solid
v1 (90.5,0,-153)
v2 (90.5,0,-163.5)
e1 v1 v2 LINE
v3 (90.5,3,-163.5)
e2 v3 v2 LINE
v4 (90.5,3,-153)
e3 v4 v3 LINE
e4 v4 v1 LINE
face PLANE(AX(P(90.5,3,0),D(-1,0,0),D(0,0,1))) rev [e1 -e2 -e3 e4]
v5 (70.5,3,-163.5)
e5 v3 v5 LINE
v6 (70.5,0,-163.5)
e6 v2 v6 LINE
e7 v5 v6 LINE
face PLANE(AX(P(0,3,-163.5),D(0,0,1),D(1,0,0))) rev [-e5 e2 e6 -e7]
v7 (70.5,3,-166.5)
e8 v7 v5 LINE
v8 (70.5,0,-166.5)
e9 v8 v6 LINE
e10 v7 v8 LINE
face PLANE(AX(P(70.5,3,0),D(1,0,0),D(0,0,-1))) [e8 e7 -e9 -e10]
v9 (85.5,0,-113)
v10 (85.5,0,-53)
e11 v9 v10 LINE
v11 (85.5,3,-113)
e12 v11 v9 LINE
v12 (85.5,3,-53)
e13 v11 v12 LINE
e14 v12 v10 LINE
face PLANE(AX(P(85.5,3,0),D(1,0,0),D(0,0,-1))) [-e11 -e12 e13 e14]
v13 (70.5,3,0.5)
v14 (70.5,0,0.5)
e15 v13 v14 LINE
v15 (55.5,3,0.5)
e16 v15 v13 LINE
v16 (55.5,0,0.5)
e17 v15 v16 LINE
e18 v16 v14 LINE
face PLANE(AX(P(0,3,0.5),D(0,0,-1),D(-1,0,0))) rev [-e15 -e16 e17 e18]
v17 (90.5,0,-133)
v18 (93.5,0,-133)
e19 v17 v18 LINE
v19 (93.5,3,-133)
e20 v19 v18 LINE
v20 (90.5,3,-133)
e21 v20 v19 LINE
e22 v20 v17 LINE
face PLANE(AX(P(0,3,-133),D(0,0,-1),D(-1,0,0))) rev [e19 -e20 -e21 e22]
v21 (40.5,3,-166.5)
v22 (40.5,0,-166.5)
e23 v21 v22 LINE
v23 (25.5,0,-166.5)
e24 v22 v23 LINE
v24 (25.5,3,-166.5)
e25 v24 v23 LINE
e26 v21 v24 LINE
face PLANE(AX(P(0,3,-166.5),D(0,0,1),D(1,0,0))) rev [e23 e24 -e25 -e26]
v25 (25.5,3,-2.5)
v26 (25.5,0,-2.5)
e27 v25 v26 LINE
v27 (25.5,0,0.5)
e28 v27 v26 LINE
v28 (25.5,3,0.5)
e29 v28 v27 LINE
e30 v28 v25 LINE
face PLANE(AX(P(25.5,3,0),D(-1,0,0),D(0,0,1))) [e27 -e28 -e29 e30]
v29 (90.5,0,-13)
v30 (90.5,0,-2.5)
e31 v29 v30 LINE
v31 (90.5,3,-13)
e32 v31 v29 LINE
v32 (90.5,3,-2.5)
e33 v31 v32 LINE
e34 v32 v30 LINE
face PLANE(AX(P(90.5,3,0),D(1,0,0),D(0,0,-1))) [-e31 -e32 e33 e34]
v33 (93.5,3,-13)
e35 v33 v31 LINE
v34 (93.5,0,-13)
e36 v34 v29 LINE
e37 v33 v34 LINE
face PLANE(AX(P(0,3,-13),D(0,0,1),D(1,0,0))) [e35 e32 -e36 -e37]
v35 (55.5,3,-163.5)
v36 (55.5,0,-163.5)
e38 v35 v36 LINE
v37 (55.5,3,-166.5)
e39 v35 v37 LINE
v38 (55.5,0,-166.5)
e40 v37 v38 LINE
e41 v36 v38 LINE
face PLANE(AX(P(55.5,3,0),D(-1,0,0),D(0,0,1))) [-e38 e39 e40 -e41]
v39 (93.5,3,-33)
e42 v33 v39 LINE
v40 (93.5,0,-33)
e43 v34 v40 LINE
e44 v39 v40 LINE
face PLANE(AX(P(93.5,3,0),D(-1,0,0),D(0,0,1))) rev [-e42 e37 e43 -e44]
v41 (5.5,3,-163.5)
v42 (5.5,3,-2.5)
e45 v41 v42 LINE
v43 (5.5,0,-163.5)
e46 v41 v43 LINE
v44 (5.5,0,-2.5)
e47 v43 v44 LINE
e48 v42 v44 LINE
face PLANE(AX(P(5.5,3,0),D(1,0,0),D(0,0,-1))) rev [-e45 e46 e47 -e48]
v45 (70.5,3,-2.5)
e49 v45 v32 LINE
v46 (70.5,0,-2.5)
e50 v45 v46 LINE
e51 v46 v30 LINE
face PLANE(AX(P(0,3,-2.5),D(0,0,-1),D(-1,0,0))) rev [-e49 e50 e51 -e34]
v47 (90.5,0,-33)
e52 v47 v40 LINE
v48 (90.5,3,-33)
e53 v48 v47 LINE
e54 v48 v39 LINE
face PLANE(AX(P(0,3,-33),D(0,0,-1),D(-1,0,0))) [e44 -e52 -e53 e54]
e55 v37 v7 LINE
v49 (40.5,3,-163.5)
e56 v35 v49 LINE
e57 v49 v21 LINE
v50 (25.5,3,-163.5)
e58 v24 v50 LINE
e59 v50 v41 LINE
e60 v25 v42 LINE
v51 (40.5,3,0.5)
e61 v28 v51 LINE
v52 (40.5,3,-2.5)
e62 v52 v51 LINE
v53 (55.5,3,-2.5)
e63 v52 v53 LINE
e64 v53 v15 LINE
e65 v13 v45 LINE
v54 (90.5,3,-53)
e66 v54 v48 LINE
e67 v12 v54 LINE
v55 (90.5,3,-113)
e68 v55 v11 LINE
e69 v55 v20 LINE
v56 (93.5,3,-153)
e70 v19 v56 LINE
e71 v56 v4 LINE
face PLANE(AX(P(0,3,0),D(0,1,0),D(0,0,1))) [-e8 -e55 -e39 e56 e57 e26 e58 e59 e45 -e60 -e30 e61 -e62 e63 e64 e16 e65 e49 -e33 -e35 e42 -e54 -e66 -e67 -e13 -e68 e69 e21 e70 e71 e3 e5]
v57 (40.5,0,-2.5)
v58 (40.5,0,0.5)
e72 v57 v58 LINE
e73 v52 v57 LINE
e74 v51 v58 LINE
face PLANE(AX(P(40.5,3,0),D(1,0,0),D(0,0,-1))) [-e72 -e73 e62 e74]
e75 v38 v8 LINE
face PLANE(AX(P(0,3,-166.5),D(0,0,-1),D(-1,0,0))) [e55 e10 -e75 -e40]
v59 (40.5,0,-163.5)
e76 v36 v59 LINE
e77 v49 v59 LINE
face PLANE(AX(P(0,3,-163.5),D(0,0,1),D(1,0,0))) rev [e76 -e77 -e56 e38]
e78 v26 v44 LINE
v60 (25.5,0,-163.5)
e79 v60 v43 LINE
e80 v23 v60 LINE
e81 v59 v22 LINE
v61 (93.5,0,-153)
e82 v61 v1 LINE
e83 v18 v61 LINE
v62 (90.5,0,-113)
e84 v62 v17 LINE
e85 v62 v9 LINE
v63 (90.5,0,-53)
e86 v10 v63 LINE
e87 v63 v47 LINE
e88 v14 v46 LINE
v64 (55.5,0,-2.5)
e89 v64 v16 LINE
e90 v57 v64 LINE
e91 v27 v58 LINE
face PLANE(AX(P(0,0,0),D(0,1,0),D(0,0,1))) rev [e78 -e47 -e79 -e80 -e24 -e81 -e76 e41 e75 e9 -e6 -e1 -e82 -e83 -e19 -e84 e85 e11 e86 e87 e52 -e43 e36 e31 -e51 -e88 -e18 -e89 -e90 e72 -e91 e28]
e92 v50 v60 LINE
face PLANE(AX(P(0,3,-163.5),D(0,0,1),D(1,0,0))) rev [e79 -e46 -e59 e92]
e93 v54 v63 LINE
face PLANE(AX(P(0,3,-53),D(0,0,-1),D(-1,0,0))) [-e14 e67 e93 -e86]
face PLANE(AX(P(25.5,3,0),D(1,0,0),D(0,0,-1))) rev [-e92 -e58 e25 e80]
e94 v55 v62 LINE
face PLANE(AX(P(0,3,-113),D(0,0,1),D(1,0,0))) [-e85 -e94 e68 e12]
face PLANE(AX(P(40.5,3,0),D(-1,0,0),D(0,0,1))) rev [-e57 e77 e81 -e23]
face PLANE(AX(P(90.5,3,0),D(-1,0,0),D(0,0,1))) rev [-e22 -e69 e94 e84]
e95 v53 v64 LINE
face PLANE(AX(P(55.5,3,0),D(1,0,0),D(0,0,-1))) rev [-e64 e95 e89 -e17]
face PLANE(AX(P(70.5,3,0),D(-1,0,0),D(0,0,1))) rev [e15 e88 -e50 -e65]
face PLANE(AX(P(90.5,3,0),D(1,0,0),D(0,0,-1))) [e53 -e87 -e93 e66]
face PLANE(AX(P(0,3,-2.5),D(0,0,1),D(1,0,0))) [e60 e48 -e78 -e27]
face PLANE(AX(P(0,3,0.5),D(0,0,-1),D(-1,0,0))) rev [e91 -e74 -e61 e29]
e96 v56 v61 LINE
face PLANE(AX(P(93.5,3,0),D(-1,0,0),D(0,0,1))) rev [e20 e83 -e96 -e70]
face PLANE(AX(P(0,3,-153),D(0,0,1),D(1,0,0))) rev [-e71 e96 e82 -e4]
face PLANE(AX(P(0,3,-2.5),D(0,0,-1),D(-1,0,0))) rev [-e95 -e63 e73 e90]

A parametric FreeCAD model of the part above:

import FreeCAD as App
import Part
import Sketcher

V = App.Vector
Q = App.Units.Quantity


def add_polygon(sketch, points):
    """Adds a closed chain of lines whose ends are joined by coincident constraints."""
    first, n = sketch.GeometryCount, len(points)
    for a, b in zip(points, points[1:] + points[:1]):
        sketch.addGeometry(Part.LineSegment(App.Vector(*a, 0), App.Vector(*b, 0)), False)
    for i in range(n):
        sketch.addConstraint(Sketcher.Constraint("Coincident", first + i, 2, first + (i + 1) % n, 1))

doc = App.newDocument("Part")
body = doc.addObject("PartDesign::Body", "Body")

# Sketch on XZ plane
sketch1 = body.newObject("Sketcher::SketchObject", "Sketch")
sketch1.AttachmentSupport = (doc.getObject("XZ_Plane"), [""])
sketch1.MapMode = "FlatFace"
add_polygon(sketch1, [(25.5, -2.5), (25.5, 0.5), (40.5, 0.5), (40.5, -2.5), (55.5, -2.5), (55.5, 0.5), (70.5, 0.5), (70.5, -2.5), (90.5, -2.5), (90.5, -13), (93.5, -13), (93.5, -33), (90.5, -33), (90.5, -53), (85.5, -53), (85.5, -113), (90.5, -113), (90.5, -133), (93.5, -133), (93.5, -153), (90.5, -153), (90.5, -163.5), (70.5, -163.5), (70.5, -166.5), (55.5, -166.5), (55.5, -163.5), (40.5, -163.5), (40.5, -166.5), (25.5, -166.5), (25.5, -163.5), (5.5, -163.5), (5.5, -2.5)])  # lines 0-31
sketch1.addConstraint([
    Sketcher.Constraint("Vertical", 0),
    Sketcher.Constraint("Horizontal", 1),
    Sketcher.Constraint("Vertical", 2),
    Sketcher.Constraint("Horizontal", 3),
    Sketcher.Constraint("Vertical", 4),
    Sketcher.Constraint("Horizontal", 5),
    Sketcher.Constraint("Vertical", 6),
    Sketcher.Constraint("Horizontal", 7),
    Sketcher.Constraint("Vertical", 8),
    Sketcher.Constraint("Horizontal", 9),
    Sketcher.Constraint("Vertical", 10),
    Sketcher.Constraint("Horizontal", 11),
    Sketcher.Constraint("Vertical", 12),
    Sketcher.Constraint("Horizontal", 13),
    Sketcher.Constraint("Vertical", 14),
    Sketcher.Constraint("Horizontal", 15),
    Sketcher.Constraint("Vertical", 16),
    Sketcher.Constraint("Horizontal", 17),
    Sketcher.Constraint("Vertical", 18),
    Sketcher.Constraint("Horizontal", 19),
    Sketcher.Constraint("Vertical", 20),
    Sketcher.Constraint("Horizontal", 21),
    Sketcher.Constraint("Vertical", 22),
    Sketcher.Constraint("Horizontal", 23),
    Sketcher.Constraint("Vertical", 24),
    Sketcher.Constraint("Horizontal", 25),
    Sketcher.Constraint("Vertical", 26),
    Sketcher.Constraint("Horizontal", 27),
    Sketcher.Constraint("Vertical", 28),
    Sketcher.Constraint("Horizontal", 29),
    Sketcher.Constraint("Vertical", 30),
    Sketcher.Constraint("Horizontal", 31),
    Sketcher.Constraint("Horizontal", 1, 2, 4, 2),
    Sketcher.Constraint("Horizontal", 3, 2, 6, 2),
    Sketcher.Constraint("Horizontal", 21, 2, 24, 2),
    Sketcher.Constraint("Horizontal", 23, 2, 26, 2),
    Sketcher.Constraint("Horizontal", 25, 2, 28, 2),
    Sketcher.Constraint("Horizontal", 7, 2, 30, 2),
    Sketcher.Constraint("Vertical", 8, 2, 11, 2),
    Sketcher.Constraint("Vertical", 12, 2, 15, 2),
    Sketcher.Constraint("Vertical", 10, 2, 17, 2),
    Sketcher.Constraint("Vertical", 16, 2, 19, 2),
    Sketcher.Constraint("Vertical", 6, 2, 21, 2),
    Sketcher.Constraint("Vertical", 4, 2, 23, 2),
    Sketcher.Constraint("Vertical", 2, 2, 25, 2),
    Sketcher.Constraint("Vertical", 0, 2, 27, 2),
    Sketcher.Constraint("Equal", 1, 3),
    Sketcher.Constraint("Equal", 3, 5),
    Sketcher.Constraint("Equal", 21, 29),
    Sketcher.Constraint("Equal", 19, 0),
    Sketcher.Constraint("Equal", 31, 10),
    Sketcher.Constraint("Equal", 10, 12),
    Sketcher.Constraint("Equal", 12, 16),
    Sketcher.Constraint("Equal", 16, 18),
    Sketcher.Constraint("Equal", 8, 20),
    Sketcher.Constraint("Equal", 6, 22),
    Sketcher.Constraint("DistanceX", 1, 1, 1, 2, Q("15 mm")),
    Sketcher.Constraint("DistanceX", 7, 1, 7, 2, Q("20 mm")),
    Sketcher.Constraint("DistanceX", 9, 1, 9, 2, Q("3 mm")),
    Sketcher.Constraint("DistanceX", 13, 2, 13, 1, Q("5 mm")),
    Sketcher.Constraint("DistanceY", 14, 2, 14, 1, Q("60 mm")),
    Sketcher.Constraint("DistanceY", 30, 1, 30, 2, Q("161 mm")),
    Sketcher.Constraint("DistanceY", 8, 2, -1, 1, Q("13 mm")),
    Sketcher.Constraint("DistanceX", -1, 1, 0, 2, Q("25.5 mm")),
])
pad1 = body.newObject("PartDesign::Pad", "Pad")
pad1.Profile = sketch1
pad1.Length = 3
pad1.Reversed = True

doc.recompute()
